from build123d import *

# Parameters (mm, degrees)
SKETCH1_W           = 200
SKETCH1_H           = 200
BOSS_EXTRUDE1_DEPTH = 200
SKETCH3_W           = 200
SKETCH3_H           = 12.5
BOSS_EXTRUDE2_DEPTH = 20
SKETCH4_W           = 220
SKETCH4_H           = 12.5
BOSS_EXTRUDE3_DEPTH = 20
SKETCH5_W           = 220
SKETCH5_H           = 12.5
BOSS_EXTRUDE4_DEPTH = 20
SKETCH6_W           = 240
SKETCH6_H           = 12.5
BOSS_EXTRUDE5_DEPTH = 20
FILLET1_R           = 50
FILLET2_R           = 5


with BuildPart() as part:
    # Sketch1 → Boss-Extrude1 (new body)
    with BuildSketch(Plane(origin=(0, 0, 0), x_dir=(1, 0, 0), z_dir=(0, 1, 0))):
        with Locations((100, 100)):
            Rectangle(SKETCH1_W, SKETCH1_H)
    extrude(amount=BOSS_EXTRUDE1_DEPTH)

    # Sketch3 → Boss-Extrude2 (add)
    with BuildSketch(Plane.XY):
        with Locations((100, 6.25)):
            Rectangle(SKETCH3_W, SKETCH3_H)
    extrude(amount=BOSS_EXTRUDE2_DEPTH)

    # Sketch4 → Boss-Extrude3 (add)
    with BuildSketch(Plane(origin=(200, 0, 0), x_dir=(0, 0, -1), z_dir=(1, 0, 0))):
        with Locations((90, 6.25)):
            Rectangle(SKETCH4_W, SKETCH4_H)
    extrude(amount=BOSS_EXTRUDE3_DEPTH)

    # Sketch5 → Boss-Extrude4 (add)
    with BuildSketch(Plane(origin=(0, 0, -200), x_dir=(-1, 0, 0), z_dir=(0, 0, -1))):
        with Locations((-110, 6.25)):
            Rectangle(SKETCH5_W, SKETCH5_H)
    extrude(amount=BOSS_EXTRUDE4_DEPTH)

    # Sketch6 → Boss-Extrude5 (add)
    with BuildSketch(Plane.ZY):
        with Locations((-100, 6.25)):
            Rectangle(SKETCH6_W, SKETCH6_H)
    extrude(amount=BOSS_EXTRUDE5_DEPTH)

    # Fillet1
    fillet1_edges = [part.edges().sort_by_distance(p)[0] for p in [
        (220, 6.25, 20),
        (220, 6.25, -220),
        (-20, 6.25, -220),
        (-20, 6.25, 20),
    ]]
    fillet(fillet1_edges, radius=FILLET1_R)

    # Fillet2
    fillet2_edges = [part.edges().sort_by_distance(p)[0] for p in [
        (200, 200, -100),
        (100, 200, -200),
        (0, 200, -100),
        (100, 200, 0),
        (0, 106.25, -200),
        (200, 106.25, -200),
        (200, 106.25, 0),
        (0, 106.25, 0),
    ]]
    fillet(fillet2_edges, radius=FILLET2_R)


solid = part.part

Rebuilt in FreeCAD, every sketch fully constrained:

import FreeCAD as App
import Part
import Sketcher
from FreeCAD import Vector
Q = App.Units.Quantity


def edges_at(feature, points):
    """Names of the edges that pass closest to the given points."""
    edges = feature.Shape.Edges
    near = lambda p: min(range(len(edges)), key=lambda i: edges[i].distToShape(Part.Vertex(*p))[0])
    return sorted({f"Edge{near(p) + 1}" for p in points})

doc = App.newDocument("Part")
body = doc.addObject("PartDesign::Body", "Body")

sketch1 = doc.addObject("Sketcher::SketchObject", "Sketch")
body.addObject(sketch1)
sketch1.AttachmentSupport = (doc.XZ_Plane, [""])
sketch1.MapMode = "FlatFace"
sketch1.addGeometry(Part.LineSegment(Vector(0, -200, 0), Vector(0, 0, 0)), False)
sketch1.addGeometry(Part.LineSegment(Vector(0, 0, 0), Vector(200, 0, 0)), False)
sketch1.addGeometry(Part.LineSegment(Vector(200, 0, 0), Vector(200, -200, 0)), False)
sketch1.addGeometry(Part.LineSegment(Vector(200, -200, 0), Vector(0, -200, 0)), False)
sketch1.addConstraint(Sketcher.Constraint("Coincident", 0, 2, 1, 1))
sketch1.addConstraint(Sketcher.Constraint("Coincident", 1, 2, 2, 1))
sketch1.addConstraint(Sketcher.Constraint("Coincident", 2, 2, 3, 1))
sketch1.addConstraint(Sketcher.Constraint("Coincident", 3, 2, 0, 1))
sketch1.addConstraint(Sketcher.Constraint("Vertical", 0))
sketch1.addConstraint(Sketcher.Constraint("Horizontal", 1))
sketch1.addConstraint(Sketcher.Constraint("Vertical", 2))
sketch1.addConstraint(Sketcher.Constraint("Horizontal", 3))
sketch1.addConstraint(Sketcher.Constraint("Coincident", 0, 2, -1, 1))
sketch1.addConstraint(Sketcher.Constraint("Equal", 3, 0))
sketch1.addConstraint(Sketcher.Constraint("DistanceX", 1, 1, 1, 2, Q("200 mm")))
pad1 = doc.addObject("PartDesign::Pad", "Pad")
body.addObject(pad1)
pad1.Profile = sketch1
pad1.Length = 200
pad1.Reversed = True

sketch2 = doc.addObject("Sketcher::SketchObject", "Sketch001")
body.addObject(sketch2)
sketch2.AttachmentSupport = (doc.XY_Plane, [""])
sketch2.MapMode = "FlatFace"
sketch2.addGeometry(Part.LineSegment(Vector(0, 12, 0), Vector(0, 0, 0)), False)
sketch2.addGeometry(Part.LineSegment(Vector(0, 0, 0), Vector(200, 0, 0)), False)
sketch2.addGeometry(Part.LineSegment(Vector(200, 0, 0), Vector(200, 12, 0)), False)
sketch2.addGeometry(Part.LineSegment(Vector(200, 12, 0), Vector(0, 12, 0)), False)
sketch2.addConstraint(Sketcher.Constraint("Coincident", 0, 2, 1, 1))
sketch2.addConstraint(Sketcher.Constraint("Coincident", 1, 2, 2, 1))
sketch2.addConstraint(Sketcher.Constraint("Coincident", 2, 2, 3, 1))
sketch2.addConstraint(Sketcher.Constraint("Coincident", 3, 2, 0, 1))
sketch2.addConstraint(Sketcher.Constraint("Vertical", 0))
sketch2.addConstraint(Sketcher.Constraint("Horizontal", 1))
sketch2.addConstraint(Sketcher.Constraint("Vertical", 2))
sketch2.addConstraint(Sketcher.Constraint("Horizontal", 3))
sketch2.addConstraint(Sketcher.Constraint("Coincident", 0, 2, -1, 1))
sketch2.addConstraint(Sketcher.Constraint("DistanceX", 1, 1, 1, 2, Q("200 mm")))
sketch2.addConstraint(Sketcher.Constraint("DistanceY", 0, 2, 0, 1, Q("12.5 mm")))
pad2 = doc.addObject("PartDesign::Pad", "Pad001")
body.addObject(pad2)
pad2.Profile = sketch2
pad2.Length = 20

sketch3 = doc.addObject("Sketcher::SketchObject", "Sketch002")
body.addObject(sketch3)
sketch3.AttachmentSupport = (doc.YZ_Plane, [""])
sketch3.MapMode = "FlatFace"
sketch3.AttachmentOffset = App.Placement(Vector(0, 0, 200), App.Rotation())
sketch3.addGeometry(Part.LineSegment(Vector(12, 20, 0), Vector(0, 20, 0)), False)
sketch3.addGeometry(Part.LineSegment(Vector(0, 20, 0), Vector(0, -200, 0)), False)
sketch3.addGeometry(Part.LineSegment(Vector(0, -200, 0), Vector(12, -200, 0)), False)
sketch3.addGeometry(Part.LineSegment(Vector(12, -200, 0), Vector(12, 20, 0)), False)
sketch3.addConstraint(Sketcher.Constraint("Coincident", 0, 2, 1, 1))
sketch3.addConstraint(Sketcher.Constraint("Coincident", 1, 2, 2, 1))
sketch3.addConstraint(Sketcher.Constraint("Coincident", 2, 2, 3, 1))
sketch3.addConstraint(Sketcher.Constraint("Coincident", 3, 2, 0, 1))
sketch3.addConstraint(Sketcher.Constraint("Horizontal", 0))
sketch3.addConstraint(Sketcher.Constraint("Vertical", 1))
sketch3.addConstraint(Sketcher.Constraint("Horizontal", 2))
sketch3.addConstraint(Sketcher.Constraint("Vertical", 3))
sketch3.addConstraint(Sketcher.Constraint("PointOnObject", 0, 2, -2))
sketch3.addConstraint(Sketcher.Constraint("DistanceY", 1, 2, 1, 1, Q("220 mm")))
sketch3.addConstraint(Sketcher.Constraint("DistanceX", 0, 2, 0, 1, Q("12.5 mm")))
sketch3.addConstraint(Sketcher.Constraint("DistanceY", -1, 1, 0, 2, Q("20 mm")))
pad3 = doc.addObject("PartDesign::Pad", "Pad002")
body.addObject(pad3)
pad3.Profile = sketch3
pad3.Length = 20

sketch4 = doc.addObject("Sketcher::SketchObject", "Sketch003")
body.addObject(sketch4)
sketch4.AttachmentSupport = (doc.XY_Plane, [""])
sketch4.MapMode = "FlatFace"
sketch4.AttachmentOffset = App.Placement(Vector(0, 0, -200), App.Rotation())
sketch4.addGeometry(Part.LineSegment(Vector(220, 12, 0), Vector(220, 0, 0)), False)
sketch4.addGeometry(Part.LineSegment(Vector(220, 0, 0), Vector(0, 0, 0)), False)
sketch4.addGeometry(Part.LineSegment(Vector(0, 0, 0), Vector(0, 12, 0)), False)
sketch4.addGeometry(Part.LineSegment(Vector(0, 12, 0), Vector(220, 12, 0)), False)
sketch4.addConstraint(Sketcher.Constraint("Coincident", 0, 2, 1, 1))
sketch4.addConstraint(Sketcher.Constraint("Coincident", 1, 2, 2, 1))
sketch4.addConstraint(Sketcher.Constraint("Coincident", 2, 2, 3, 1))
sketch4.addConstraint(Sketcher.Constraint("Coincident", 3, 2, 0, 1))
sketch4.addConstraint(Sketcher.Constraint("Vertical", 0))
sketch4.addConstraint(Sketcher.Constraint("Horizontal", 1))
sketch4.addConstraint(Sketcher.Constraint("Vertical", 2))
sketch4.addConstraint(Sketcher.Constraint("Horizontal", 3))
sketch4.addConstraint(Sketcher.Constraint("Coincident", 1, 2, -1, 1))
sketch4.addConstraint(Sketcher.Constraint("DistanceX", 1, 2, 1, 1, Q("220 mm")))
sketch4.addConstraint(Sketcher.Constraint("DistanceY", 0, 2, 0, 1, Q("12.5 mm")))
pad4 = doc.addObject("PartDesign::Pad", "Pad003")
body.addObject(pad4)
pad4.Profile = sketch4
pad4.Length = 20
pad4.Reversed = True

sketch5 = doc.addObject("Sketcher::SketchObject", "Sketch004")
body.addObject(sketch5)
sketch5.AttachmentSupport = (doc.YZ_Plane, [""])
sketch5.MapMode = "FlatFace"
sketch5.addGeometry(Part.LineSegment(Vector(12, -220, 0), Vector(0, -220, 0)), False)
sketch5.addGeometry(Part.LineSegment(Vector(0, -220, 0), Vector(0, 20, 0)), False)
sketch5.addGeometry(Part.LineSegment(Vector(0, 20, 0), Vector(12, 20, 0)), False)
sketch5.addGeometry(Part.LineSegment(Vector(12, 20, 0), Vector(12, -220, 0)), False)
sketch5.addConstraint(Sketcher.Constraint("Coincident", 0, 2, 1, 1))
sketch5.addConstraint(Sketcher.Constraint("Coincident", 1, 2, 2, 1))
sketch5.addConstraint(Sketcher.Constraint("Coincident", 2, 2, 3, 1))
sketch5.addConstraint(Sketcher.Constraint("Coincident", 3, 2, 0, 1))
sketch5.addConstraint(Sketcher.Constraint("Horizontal", 0))
sketch5.addConstraint(Sketcher.Constraint("Vertical", 1))
sketch5.addConstraint(Sketcher.Constraint("Horizontal", 2))
sketch5.addConstraint(Sketcher.Constraint("Vertical", 3))
sketch5.addConstraint(Sketcher.Constraint("PointOnObject", 0, 2, -2))
sketch5.addConstraint(Sketcher.Constraint("DistanceY", 1, 1, 1, 2, Q("240 mm")))
sketch5.addConstraint(Sketcher.Constraint("DistanceX", 0, 2, 0, 1, Q("12.5 mm")))
sketch5.addConstraint(Sketcher.Constraint("DistanceY", 0, 2, -1, 1, Q("220 mm")))
pad5 = doc.addObject("PartDesign::Pad", "Pad004")
body.addObject(pad5)
pad5.Profile = sketch5
pad5.Length = 20
pad5.Reversed = True
doc.recompute()

fillet = doc.addObject("PartDesign::Fillet", "Fillet")
body.addObject(fillet)
fillet.Base = (pad5, edges_at(pad5, [
    (220, 6.25, 20),
    (220, 6.25, -220),
    (-20, 6.25, -220),
    (-20, 6.25, 20),
]))
fillet.Radius = 50
doc.recompute()

fillet2 = doc.addObject("PartDesign::Fillet", "Fillet001")
body.addObject(fillet2)
fillet2.Base = (fillet, edges_at(fillet, [
    (200, 200, -100),
    (100, 200, -200),
    (0, 200, -100),
    (100, 200, 0),
    (0, 106.25, -200),
    (200, 106.25, -200),
    (200, 106.25, 0),
    (0, 106.25, 0),
]))
fillet2.Radius = 5

doc.recompute()
